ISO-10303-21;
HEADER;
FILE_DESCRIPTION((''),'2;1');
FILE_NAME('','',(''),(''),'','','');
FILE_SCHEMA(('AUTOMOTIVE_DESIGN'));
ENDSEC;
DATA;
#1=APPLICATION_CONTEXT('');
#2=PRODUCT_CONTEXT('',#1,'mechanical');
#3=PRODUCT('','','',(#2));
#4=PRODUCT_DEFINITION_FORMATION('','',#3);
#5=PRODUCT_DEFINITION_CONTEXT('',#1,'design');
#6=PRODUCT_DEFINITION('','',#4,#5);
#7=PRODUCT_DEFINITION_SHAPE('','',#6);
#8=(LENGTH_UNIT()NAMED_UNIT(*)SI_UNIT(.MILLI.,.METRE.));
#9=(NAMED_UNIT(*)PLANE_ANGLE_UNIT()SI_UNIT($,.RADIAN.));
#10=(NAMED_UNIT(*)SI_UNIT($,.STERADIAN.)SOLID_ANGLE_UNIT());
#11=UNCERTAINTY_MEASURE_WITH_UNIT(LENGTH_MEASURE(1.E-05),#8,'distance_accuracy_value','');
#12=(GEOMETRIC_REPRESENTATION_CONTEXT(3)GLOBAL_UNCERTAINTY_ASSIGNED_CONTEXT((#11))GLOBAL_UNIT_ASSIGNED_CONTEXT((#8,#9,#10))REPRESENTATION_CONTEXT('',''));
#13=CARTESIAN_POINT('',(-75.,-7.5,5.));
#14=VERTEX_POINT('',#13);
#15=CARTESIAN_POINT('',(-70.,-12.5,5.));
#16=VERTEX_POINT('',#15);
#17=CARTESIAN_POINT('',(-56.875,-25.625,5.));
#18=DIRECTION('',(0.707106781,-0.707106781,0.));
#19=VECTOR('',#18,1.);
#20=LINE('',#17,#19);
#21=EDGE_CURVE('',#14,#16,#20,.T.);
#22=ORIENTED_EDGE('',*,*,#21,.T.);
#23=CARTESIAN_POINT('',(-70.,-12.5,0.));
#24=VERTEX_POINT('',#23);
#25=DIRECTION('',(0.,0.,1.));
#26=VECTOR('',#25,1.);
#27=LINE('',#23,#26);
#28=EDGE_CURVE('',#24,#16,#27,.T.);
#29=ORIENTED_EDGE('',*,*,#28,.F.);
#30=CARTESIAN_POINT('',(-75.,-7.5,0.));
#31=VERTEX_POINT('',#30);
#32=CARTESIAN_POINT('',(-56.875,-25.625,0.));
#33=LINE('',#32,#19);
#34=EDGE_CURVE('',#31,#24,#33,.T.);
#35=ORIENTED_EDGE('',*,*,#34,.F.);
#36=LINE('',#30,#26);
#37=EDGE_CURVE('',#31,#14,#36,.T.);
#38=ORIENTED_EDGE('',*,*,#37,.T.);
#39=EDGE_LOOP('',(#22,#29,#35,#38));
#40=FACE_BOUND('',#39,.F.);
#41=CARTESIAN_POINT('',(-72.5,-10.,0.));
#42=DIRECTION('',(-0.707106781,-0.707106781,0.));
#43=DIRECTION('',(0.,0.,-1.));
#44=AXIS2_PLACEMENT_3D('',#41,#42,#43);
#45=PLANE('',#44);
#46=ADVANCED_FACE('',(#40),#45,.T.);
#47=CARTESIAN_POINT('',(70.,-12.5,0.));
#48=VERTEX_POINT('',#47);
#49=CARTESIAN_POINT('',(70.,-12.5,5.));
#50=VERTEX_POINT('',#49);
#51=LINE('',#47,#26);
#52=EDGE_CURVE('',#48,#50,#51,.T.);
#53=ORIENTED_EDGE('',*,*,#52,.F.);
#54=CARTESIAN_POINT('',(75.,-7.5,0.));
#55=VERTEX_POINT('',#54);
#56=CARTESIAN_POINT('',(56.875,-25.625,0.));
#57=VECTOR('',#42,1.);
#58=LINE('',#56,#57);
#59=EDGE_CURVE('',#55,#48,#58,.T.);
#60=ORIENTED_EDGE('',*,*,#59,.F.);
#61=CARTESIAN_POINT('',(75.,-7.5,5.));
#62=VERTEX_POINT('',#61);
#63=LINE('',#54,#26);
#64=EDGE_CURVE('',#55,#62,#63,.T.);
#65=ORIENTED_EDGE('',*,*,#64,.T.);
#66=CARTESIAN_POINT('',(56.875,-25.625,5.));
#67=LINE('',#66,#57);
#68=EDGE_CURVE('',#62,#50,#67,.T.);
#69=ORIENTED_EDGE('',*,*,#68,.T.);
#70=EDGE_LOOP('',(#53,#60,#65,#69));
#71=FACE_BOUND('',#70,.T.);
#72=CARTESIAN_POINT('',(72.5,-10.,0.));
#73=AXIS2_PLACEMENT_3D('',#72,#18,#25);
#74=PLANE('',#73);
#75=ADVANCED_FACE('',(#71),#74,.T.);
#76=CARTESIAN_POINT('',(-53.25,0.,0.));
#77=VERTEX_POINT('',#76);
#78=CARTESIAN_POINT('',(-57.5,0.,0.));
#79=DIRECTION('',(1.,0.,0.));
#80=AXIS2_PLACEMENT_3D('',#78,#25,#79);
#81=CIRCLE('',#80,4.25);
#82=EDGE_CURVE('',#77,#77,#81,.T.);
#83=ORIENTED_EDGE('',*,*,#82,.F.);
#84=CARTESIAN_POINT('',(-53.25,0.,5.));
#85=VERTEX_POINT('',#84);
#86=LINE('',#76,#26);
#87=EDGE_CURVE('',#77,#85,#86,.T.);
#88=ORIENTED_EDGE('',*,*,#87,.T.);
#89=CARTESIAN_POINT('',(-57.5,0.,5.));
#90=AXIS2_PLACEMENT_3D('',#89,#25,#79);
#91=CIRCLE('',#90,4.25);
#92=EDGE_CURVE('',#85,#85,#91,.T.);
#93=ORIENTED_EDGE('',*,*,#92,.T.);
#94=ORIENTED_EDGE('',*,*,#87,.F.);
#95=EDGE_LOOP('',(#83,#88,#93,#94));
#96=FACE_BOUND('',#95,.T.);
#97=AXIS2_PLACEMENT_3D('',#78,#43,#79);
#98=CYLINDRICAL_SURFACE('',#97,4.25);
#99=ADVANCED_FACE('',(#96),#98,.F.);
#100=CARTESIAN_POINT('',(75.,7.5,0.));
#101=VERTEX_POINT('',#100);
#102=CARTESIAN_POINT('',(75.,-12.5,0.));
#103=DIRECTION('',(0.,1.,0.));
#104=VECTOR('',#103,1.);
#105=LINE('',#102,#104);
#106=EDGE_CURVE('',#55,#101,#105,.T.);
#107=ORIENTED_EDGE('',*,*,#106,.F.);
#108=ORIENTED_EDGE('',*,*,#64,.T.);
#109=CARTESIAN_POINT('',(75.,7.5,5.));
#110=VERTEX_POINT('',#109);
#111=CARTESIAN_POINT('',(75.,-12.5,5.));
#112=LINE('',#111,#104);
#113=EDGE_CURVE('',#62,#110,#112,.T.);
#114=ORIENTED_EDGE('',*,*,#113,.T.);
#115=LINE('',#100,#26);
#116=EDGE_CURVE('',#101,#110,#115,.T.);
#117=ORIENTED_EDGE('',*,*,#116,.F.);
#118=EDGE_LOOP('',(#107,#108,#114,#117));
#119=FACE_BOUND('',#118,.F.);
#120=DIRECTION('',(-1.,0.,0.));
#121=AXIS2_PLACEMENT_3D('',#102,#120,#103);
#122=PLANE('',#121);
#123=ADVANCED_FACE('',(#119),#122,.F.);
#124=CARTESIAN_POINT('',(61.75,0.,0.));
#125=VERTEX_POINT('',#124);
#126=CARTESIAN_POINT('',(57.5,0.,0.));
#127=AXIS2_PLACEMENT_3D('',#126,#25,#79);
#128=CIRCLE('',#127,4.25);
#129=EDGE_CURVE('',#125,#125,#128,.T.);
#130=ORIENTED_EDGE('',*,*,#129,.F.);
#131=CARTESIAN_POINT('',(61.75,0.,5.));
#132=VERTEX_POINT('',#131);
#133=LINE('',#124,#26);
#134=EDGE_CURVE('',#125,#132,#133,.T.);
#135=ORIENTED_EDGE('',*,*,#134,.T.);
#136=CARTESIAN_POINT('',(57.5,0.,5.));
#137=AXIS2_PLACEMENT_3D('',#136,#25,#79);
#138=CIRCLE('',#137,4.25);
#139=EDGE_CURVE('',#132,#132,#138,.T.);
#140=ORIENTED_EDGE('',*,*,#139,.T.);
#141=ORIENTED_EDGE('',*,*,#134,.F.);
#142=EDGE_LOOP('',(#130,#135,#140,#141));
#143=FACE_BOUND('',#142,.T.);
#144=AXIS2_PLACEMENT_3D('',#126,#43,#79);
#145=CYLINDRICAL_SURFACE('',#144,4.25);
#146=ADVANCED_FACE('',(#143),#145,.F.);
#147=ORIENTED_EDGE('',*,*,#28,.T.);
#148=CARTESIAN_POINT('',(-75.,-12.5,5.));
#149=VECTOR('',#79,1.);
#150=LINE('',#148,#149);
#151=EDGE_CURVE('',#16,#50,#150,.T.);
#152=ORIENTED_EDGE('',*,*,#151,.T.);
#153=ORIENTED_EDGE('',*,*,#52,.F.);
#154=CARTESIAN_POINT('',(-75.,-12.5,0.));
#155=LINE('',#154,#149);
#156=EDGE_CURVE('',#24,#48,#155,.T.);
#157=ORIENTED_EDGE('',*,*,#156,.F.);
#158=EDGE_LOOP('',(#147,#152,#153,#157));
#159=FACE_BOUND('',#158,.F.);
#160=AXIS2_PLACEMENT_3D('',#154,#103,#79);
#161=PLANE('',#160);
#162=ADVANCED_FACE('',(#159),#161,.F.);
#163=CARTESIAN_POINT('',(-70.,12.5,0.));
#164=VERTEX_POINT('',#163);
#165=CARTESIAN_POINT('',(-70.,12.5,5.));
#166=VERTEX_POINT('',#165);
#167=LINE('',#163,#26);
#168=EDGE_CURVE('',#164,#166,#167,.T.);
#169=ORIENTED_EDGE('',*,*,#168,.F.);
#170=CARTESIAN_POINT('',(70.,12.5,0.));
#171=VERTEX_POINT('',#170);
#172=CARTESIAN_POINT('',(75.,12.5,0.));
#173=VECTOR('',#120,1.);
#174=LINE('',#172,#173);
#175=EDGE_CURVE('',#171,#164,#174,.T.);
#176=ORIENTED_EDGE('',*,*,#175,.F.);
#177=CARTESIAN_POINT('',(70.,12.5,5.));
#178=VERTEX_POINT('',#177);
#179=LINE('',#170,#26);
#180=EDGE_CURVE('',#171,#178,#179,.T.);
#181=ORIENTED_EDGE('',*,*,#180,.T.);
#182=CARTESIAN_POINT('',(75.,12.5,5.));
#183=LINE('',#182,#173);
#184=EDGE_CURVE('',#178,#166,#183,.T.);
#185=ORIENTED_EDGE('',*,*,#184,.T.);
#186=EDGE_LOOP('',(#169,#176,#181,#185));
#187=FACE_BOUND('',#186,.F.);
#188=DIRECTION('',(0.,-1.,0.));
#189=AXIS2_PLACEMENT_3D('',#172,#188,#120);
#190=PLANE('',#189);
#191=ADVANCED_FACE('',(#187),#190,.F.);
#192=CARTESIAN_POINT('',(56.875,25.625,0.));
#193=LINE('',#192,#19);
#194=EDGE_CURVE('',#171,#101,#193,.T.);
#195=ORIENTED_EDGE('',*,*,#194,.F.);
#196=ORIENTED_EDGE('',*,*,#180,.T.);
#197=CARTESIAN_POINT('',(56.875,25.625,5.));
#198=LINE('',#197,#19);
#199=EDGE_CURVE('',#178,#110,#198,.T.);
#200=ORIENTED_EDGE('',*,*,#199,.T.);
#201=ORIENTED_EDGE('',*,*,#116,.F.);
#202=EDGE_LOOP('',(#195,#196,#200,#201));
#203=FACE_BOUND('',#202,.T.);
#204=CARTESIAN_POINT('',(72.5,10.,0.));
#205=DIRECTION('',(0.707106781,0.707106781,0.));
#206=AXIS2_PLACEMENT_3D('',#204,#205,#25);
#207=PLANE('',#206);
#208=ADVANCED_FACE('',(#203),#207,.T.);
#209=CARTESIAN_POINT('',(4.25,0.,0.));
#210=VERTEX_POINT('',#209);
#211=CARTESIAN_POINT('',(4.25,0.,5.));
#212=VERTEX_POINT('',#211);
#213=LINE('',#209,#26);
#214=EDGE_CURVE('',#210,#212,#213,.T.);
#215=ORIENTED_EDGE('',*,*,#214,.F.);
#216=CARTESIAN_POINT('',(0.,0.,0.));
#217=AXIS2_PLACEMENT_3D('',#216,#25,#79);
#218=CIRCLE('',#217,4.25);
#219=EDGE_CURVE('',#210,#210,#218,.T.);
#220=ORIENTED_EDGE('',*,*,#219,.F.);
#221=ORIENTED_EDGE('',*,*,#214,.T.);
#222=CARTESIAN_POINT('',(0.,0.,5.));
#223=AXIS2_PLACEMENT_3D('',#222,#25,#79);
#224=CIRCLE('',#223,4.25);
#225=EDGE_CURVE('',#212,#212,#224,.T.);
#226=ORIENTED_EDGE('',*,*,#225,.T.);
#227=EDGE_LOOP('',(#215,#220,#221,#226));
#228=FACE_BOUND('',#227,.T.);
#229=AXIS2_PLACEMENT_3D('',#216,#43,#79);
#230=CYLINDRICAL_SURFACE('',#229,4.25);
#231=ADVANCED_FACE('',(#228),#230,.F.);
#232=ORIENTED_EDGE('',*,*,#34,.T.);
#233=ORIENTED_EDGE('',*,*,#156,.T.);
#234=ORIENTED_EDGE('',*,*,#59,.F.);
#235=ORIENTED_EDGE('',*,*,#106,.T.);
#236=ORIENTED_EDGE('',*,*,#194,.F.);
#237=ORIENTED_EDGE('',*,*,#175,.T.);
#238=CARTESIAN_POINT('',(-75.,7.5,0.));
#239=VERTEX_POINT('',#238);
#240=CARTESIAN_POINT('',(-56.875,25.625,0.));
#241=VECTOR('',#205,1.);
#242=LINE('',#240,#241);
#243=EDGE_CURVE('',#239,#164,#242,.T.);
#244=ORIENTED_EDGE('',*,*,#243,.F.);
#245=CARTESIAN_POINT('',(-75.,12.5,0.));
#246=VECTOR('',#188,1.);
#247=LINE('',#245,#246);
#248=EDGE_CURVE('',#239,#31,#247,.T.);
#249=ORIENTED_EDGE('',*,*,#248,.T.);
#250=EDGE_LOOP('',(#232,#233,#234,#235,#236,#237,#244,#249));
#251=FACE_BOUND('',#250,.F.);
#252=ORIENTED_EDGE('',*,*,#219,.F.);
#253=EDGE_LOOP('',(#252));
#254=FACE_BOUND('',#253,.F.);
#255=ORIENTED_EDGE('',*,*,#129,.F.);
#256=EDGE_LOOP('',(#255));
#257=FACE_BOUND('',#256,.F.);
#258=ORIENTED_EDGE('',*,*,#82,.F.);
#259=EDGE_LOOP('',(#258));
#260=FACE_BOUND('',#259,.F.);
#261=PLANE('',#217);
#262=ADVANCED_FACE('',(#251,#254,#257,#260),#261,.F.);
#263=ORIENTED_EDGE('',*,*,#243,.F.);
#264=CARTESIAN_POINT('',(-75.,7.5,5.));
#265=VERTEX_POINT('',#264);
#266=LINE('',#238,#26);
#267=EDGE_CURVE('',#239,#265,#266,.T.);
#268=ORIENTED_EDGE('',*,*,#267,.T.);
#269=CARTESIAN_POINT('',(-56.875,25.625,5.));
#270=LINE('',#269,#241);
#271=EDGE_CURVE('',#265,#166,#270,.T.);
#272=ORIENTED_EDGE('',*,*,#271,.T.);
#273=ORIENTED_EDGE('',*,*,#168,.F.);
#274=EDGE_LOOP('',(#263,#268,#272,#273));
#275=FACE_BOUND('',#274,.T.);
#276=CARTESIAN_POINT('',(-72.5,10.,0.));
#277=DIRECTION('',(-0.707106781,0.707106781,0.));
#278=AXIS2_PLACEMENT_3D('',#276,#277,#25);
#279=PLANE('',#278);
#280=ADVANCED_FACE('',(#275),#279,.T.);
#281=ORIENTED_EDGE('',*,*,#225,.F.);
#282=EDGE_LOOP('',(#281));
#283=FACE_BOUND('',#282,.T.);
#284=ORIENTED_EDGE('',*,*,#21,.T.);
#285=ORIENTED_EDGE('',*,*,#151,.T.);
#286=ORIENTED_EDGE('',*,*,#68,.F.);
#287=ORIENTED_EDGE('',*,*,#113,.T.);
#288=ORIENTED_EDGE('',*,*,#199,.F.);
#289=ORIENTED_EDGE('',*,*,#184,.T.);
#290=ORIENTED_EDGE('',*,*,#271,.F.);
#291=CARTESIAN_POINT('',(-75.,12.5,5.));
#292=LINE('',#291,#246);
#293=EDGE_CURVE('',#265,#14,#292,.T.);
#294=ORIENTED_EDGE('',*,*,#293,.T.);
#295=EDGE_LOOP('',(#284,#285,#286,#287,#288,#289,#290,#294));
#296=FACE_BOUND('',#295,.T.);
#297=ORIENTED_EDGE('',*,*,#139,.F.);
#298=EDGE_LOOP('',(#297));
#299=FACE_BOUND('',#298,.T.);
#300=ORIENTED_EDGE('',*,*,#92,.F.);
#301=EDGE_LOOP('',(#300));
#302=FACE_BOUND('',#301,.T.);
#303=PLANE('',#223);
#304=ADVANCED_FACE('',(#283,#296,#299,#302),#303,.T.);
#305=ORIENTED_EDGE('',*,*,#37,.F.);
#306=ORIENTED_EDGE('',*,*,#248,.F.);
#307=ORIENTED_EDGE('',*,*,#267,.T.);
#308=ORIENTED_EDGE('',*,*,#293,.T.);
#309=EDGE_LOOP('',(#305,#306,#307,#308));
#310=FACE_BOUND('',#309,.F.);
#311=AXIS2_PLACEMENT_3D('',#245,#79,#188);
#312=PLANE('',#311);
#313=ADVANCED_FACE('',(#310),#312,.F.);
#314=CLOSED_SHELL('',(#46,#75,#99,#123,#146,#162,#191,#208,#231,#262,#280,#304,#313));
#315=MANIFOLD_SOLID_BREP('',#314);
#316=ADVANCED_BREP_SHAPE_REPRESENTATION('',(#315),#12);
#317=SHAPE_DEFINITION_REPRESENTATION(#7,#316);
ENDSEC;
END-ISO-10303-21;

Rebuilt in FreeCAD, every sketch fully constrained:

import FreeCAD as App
import Part
import Sketcher
Q = App.Units.Quantity


def edges_at(feature, points):
    """Names of the edges that pass closest to the given points."""
    edges = feature.Shape.Edges
    near = lambda p: min(range(len(edges)), key=lambda i: edges[i].distToShape(Part.Vertex(*p))[0])
    return sorted({f"Edge{near(p) + 1}" for p in points})


def add_polygon(sketch, points):
    """Adds a closed chain of lines whose ends are joined by coincident constraints."""
    first, n = sketch.GeometryCount, len(points)
    for a, b in zip(points, points[1:] + points[:1]):
        sketch.addGeometry(Part.LineSegment(App.Vector(*a, 0), App.Vector(*b, 0)), False)
    for i in range(n):
        sketch.addConstraint(Sketcher.Constraint("Coincident", first + i, 2, first + (i + 1) % n, 1))

doc = App.newDocument("Part")
body = doc.addObject("PartDesign::Body", "Body")

sketch1 = body.newObject("Sketcher::SketchObject", "Sketch")
sketch1.AttachmentSupport = (doc.getObject("XY_Plane"), [""])
sketch1.MapMode = "FlatFace"
add_polygon(sketch1, [(-75, 12.5), (-75, -12.5), (75, -12.5), (75, 12.5)])
sketch1.addGeometry(Part.Circle(App.Vector(-57.5, 0, 0), App.Vector(0, 0, 1), 4.2), False)
sketch1.addGeometry(Part.Circle(App.Vector(0, 0, 0), App.Vector(0, 0, 1), 4.2), False)
sketch1.addGeometry(Part.Circle(App.Vector(57.5, 0, 0), App.Vector(0, 0, 1), 4.2), False)
sketch1.addConstraint([
    Sketcher.Constraint("Vertical", 0),
    Sketcher.Constraint("Horizontal", 1),
    Sketcher.Constraint("Vertical", 2),
    Sketcher.Constraint("Horizontal", 3),
    Sketcher.Constraint("Coincident", 5, 3, -1, 1),
    Sketcher.Constraint("Equal", 4, 5),
    Sketcher.Constraint("Equal", 5, 6),
    Sketcher.Constraint("Symmetric", 4, 3, 6, 3, -1, 1),
    Sketcher.Constraint("Symmetric", 0, 2, 2, 2, -1, 1),
    Sketcher.Constraint("PointOnObject", 4, 3, -1),
    Sketcher.Constraint("Diameter", 4, Q("8.5 mm")),
    Sketcher.Constraint("DistanceX", 1, 1, 1, 2, Q("150 mm")),
    Sketcher.Constraint("DistanceY", 0, 2, 0, 1, Q("25 mm")),
    Sketcher.Constraint("DistanceX", 4, 3, 6, 3, Q("115 mm")),
])
pad1 = body.newObject("PartDesign::Pad", "Pad")
pad1.Profile = sketch1
pad1.Length = 5
doc.recompute()

chamfer = body.newObject("PartDesign::Chamfer", "Chamfer")
chamfer.Base = (pad1, edges_at(pad1, [
    (-75, 12.5, 2.5),
    (-75, -12.5, 2.5),
    (75, -12.5, 2.5),
    (75, 12.5, 2.5),
]))
chamfer.Size = 5

doc.recompute()
